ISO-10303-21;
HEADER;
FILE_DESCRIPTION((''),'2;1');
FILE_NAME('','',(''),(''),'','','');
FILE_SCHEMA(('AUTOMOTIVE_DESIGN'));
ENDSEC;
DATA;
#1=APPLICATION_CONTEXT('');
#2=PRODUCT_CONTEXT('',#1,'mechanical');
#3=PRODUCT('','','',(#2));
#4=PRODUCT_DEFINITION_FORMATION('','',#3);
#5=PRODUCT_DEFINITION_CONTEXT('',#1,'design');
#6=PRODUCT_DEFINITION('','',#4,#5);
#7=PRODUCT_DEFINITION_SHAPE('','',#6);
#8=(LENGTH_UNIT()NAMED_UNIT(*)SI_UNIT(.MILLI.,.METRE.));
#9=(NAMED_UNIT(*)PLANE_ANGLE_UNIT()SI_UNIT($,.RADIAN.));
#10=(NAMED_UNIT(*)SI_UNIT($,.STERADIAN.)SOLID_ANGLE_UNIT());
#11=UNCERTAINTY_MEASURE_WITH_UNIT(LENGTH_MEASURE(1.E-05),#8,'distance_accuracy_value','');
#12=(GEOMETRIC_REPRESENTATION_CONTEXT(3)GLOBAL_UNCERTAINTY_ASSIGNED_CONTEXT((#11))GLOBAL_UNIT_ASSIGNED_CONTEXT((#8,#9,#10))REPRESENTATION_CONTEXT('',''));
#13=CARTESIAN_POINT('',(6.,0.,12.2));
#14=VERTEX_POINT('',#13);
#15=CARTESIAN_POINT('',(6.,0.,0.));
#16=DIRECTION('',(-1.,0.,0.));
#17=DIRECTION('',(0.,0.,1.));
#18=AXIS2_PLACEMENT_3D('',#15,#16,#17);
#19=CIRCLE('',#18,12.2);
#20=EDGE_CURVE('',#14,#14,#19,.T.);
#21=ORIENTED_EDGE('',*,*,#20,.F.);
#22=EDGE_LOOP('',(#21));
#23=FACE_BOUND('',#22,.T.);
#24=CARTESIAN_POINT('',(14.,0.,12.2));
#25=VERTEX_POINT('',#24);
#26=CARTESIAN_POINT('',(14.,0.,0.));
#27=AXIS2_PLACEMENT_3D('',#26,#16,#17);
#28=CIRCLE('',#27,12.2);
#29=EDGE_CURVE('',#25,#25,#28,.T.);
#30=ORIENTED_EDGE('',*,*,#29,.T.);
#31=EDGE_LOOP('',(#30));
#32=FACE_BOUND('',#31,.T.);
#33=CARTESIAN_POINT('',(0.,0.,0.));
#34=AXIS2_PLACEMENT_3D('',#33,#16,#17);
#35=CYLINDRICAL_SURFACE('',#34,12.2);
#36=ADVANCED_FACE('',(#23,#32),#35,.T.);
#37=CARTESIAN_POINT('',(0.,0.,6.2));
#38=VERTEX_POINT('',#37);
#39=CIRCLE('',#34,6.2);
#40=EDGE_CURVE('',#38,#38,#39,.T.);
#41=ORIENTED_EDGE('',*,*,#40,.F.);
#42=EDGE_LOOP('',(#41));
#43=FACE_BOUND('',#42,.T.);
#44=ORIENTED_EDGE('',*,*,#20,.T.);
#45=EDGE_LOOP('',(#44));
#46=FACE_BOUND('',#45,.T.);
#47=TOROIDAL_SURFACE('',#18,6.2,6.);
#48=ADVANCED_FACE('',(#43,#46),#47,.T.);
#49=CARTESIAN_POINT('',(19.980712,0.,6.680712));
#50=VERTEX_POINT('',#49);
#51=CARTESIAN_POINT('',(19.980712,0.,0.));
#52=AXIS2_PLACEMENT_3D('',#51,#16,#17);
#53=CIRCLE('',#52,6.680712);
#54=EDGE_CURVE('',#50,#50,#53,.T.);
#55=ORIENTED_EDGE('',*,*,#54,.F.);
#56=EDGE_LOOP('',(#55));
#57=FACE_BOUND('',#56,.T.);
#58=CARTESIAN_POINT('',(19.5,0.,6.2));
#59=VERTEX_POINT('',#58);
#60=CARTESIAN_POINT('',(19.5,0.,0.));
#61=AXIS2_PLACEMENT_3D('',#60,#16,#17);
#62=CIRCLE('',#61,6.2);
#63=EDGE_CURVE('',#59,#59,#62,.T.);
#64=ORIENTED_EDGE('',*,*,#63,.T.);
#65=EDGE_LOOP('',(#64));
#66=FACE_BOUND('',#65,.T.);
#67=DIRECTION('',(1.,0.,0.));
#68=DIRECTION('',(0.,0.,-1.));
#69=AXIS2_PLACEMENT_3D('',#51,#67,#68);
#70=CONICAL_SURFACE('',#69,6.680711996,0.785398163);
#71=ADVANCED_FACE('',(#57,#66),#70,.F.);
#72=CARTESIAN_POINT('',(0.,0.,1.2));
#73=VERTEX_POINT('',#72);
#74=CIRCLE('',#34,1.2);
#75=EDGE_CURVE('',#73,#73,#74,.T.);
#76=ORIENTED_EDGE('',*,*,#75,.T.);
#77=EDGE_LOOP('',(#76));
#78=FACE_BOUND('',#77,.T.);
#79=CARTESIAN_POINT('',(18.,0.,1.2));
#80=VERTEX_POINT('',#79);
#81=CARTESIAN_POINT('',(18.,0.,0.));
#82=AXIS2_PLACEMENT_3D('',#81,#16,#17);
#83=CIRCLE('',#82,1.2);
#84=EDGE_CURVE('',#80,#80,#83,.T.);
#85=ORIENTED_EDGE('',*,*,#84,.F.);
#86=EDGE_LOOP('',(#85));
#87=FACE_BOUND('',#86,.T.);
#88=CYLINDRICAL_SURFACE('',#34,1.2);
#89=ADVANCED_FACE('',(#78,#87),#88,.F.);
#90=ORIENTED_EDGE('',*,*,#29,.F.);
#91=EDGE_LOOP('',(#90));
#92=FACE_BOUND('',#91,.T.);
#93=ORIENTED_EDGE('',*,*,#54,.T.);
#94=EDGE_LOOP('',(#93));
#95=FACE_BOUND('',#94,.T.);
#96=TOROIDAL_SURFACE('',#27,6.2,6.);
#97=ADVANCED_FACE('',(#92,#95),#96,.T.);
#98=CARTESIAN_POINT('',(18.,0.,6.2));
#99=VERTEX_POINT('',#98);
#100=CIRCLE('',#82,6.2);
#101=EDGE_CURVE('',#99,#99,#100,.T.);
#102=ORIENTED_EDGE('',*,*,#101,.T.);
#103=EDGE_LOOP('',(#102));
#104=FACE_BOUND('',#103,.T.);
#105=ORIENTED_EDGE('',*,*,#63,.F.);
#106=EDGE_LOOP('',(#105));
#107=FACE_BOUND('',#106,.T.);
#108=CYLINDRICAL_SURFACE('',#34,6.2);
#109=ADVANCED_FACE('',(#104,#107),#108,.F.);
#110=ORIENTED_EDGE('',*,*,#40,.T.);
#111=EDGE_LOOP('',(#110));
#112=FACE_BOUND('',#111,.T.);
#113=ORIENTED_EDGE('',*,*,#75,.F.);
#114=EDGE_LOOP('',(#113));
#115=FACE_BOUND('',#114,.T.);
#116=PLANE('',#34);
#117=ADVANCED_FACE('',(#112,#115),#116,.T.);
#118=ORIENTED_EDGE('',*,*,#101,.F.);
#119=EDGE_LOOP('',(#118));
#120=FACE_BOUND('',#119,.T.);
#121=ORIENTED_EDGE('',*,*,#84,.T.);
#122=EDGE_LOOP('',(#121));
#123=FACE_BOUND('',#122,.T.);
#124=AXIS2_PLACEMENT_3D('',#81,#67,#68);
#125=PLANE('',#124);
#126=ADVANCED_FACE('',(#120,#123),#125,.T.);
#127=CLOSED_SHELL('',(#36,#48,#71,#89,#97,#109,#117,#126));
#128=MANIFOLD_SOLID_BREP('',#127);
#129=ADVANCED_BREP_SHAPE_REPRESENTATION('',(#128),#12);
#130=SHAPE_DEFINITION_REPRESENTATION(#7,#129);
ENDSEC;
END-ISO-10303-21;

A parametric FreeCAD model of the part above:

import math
import FreeCAD as App
import Part
import Sketcher

V = App.Vector
Q = App.Units.Quantity

doc = App.newDocument("Part")
body = doc.addObject("PartDesign::Body", "Body")

# Sketch on XZ plane
sketch1 = body.newObject("Sketcher::SketchObject", "Sketch")
sketch1.AttachmentSupport = (doc.getObject("XZ_Plane"), [""])
sketch1.MapMode = "FlatFace"
sketch1.addGeometry([
    Part.LineSegment(V(19.5, -6.2, 0), V(20, -6.7, 0)),  # 0
    Part.ArcOfCircle(Part.Circle(V(14, -6.2, 0), V(0, 0, 1), 6), math.radians(-90), math.radians(-5)),  # 1
    Part.LineSegment(V(14, -12.2, 0), V(6, -12.2, 0)),  # 2
    Part.ArcOfCircle(Part.Circle(V(6, -6.2, 0), V(0, 0, 1), 6), math.radians(180), math.radians(270)),  # 3
    Part.LineSegment(V(0, -6.2, 0), V(0, -1.2, 0)),  # 4
    Part.LineSegment(V(0, -1.2, 0), V(18, -1.2, 0)),  # 5
    Part.LineSegment(V(18, -1.2, 0), V(18, -6.2, 0)),  # 6
    Part.LineSegment(V(18, -6.2, 0), V(19.5, -6.2, 0)),  # 7
], False)
sketch1.addConstraint([
    Sketcher.Constraint("Coincident", 0, 2, 1, 2),
    Sketcher.Constraint("Tangent", 1, 1, 2, 1),
    Sketcher.Constraint("Tangent", 2, 2, 3, 2),
    Sketcher.Constraint("Tangent", 3, 1, 4, 1),
    Sketcher.Constraint("Coincident", 4, 2, 5, 1),
    Sketcher.Constraint("Coincident", 5, 2, 6, 1),
    Sketcher.Constraint("Coincident", 6, 2, 7, 1),
    Sketcher.Constraint("Coincident", 7, 2, 0, 1),
    Sketcher.Constraint("Horizontal", 2),
    Sketcher.Constraint("Vertical", 4),
    Sketcher.Constraint("Horizontal", 5),
    Sketcher.Constraint("Vertical", 6),
    Sketcher.Constraint("Horizontal", 7),
    Sketcher.Constraint("Equal", 1, 3),
    Sketcher.Constraint("PointOnObject", 3, 1, -2),
    Sketcher.Constraint("Horizontal", 3, 1, 6, 2),
    Sketcher.Constraint("Radius", 1, 6.0),
    Sketcher.Constraint("DistanceX", 2, 2, 2, 1, 8.0),
    Sketcher.Constraint("DistanceX", 5, 1, 5, 2, 18.0),
    Sketcher.Constraint("DistanceY", 4, 1, 4, 2, 5.0),
    Sketcher.Constraint("Angle", 0, Q("-45 deg")),
    Sketcher.Constraint("DistanceX", 7, 1, 7, 2, 1.5),
    Sketcher.Constraint("DistanceY", 1, 3, -1, 1, 6.2),
])
revolution = body.newObject("PartDesign::Revolution", "Revolution")
revolution.Profile = sketch1
revolution.ReferenceAxis = (sketch1, ["H_Axis"])
revolution.Angle = 360

doc.recompute()
